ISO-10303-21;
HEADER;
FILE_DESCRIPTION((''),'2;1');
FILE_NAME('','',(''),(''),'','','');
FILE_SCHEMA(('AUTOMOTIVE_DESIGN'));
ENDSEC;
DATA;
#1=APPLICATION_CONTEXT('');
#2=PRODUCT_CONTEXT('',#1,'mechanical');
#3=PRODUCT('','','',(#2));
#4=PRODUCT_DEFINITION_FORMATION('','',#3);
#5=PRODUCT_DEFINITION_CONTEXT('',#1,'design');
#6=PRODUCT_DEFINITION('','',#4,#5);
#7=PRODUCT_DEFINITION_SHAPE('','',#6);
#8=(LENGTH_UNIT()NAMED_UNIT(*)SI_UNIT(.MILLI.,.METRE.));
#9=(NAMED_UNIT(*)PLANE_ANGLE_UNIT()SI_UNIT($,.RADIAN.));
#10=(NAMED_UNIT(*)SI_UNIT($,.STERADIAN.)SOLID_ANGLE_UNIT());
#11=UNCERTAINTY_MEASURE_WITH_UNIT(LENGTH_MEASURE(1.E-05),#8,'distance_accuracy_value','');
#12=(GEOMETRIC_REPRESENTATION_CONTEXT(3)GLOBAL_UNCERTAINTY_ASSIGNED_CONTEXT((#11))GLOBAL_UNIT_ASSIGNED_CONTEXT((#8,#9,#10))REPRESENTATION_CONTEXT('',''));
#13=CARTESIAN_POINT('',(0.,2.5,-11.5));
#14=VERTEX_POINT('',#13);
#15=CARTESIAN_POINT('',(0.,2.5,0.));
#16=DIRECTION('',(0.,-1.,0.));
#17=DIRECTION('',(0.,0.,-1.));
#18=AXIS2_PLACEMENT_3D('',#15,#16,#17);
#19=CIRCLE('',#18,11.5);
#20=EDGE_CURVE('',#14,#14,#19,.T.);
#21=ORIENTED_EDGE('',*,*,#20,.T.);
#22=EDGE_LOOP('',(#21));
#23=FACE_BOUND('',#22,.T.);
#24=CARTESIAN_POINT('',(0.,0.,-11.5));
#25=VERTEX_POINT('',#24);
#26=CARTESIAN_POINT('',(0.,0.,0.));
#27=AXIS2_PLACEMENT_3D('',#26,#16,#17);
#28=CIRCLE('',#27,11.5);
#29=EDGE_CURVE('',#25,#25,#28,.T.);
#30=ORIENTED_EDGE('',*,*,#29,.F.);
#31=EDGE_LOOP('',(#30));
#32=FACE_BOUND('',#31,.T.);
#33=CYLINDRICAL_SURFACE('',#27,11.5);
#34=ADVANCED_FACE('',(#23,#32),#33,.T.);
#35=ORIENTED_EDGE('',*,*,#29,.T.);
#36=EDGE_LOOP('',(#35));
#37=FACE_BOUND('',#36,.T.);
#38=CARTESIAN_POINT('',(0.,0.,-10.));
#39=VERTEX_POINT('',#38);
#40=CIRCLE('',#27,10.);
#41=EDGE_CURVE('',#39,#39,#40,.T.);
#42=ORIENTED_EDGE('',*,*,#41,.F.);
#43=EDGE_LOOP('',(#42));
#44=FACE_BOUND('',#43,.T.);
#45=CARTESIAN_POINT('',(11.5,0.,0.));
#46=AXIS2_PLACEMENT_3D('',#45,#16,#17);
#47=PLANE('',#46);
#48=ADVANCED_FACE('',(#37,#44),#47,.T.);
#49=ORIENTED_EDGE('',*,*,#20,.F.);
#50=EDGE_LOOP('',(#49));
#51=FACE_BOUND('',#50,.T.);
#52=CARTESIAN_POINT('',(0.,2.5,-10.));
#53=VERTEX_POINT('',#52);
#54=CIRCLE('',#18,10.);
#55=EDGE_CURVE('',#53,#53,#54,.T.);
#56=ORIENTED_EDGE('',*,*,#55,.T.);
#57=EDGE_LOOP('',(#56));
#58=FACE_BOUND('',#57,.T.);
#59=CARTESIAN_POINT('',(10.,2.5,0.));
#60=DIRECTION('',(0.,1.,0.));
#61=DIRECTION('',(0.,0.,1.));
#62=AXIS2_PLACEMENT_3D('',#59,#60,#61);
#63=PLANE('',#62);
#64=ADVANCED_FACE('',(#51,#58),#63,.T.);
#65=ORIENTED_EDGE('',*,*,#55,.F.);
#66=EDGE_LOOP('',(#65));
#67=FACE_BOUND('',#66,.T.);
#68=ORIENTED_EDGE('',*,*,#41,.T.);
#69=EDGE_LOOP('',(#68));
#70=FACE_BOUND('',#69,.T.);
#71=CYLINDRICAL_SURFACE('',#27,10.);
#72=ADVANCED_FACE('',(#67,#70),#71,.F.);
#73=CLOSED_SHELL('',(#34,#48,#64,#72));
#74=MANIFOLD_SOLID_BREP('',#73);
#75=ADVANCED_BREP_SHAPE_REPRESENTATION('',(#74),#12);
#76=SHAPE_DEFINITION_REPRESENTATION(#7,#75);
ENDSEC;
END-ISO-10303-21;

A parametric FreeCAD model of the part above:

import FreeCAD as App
import Part
import Sketcher
from FreeCAD import Vector
Q = App.Units.Quantity


def add_polygon(sketch, points):
    """Adds a closed chain of lines whose ends are joined by coincident constraints."""
    first, n = sketch.GeometryCount, len(points)
    for a, b in zip(points, points[1:] + points[:1]):
        sketch.addGeometry(Part.LineSegment(App.Vector(*a, 0), App.Vector(*b, 0)), False)
    for i in range(n):
        sketch.addConstraint(Sketcher.Constraint("Coincident", first + i, 2, first + (i + 1) % n, 1))

doc = App.newDocument("Part")
params = doc.addObject("Spreadsheet::Sheet", "Params")
for row, (alias, value) in enumerate([
    ("sketch1_width", "1.5 mm"),
    ("sketch1_height", "2.5 mm"),
    ("revolution_angle", "360 deg"),
], start=1):
    params.set(f"A{row}", alias)
    params.set(f"B{row}", "=" + value)
    params.setAlias(f"B{row}", alias)

body = doc.addObject("PartDesign::Body", "Body")

# Sketch on XY plane
sketch1 = body.newObject("Sketcher::SketchObject", "Sketch")
sketch1.AttachmentSupport = (doc.getObject("XY_Plane"), [""])
sketch1.MapMode = "FlatFace"
add_polygon(sketch1, [(10, 2.5), (10, 0), (11.5, 0), (11.5, 2.5)])  # lines 0-3
sketch1.addConstraint([
    Sketcher.Constraint("Vertical", 0),
    Sketcher.Constraint("Horizontal", 1),
    Sketcher.Constraint("Vertical", 2),
    Sketcher.Constraint("Horizontal", 3),
    Sketcher.Constraint("PointOnObject", 0, 2, -1),
    Sketcher.Constraint("DistanceX", 1, 1, 1, 2, Q("1.5 mm")),
    Sketcher.Constraint("DistanceY", 0, 2, 0, 1, Q("2.5 mm")),
    Sketcher.Constraint("DistanceX", -1, 1, 0, 2, Q("10 mm")),
])
sketch1.setExpression("Constraints[9]", "Params.sketch1_width")
sketch1.setExpression("Constraints[10]", "Params.sketch1_height")
revolution = body.newObject("PartDesign::Revolution", "Revolution")
revolution.Profile = sketch1
revolution.ReferenceAxis = (sketch1, ["V_Axis"])
revolution.setExpression("Angle", "Params.revolution_angle")

doc.recompute()
